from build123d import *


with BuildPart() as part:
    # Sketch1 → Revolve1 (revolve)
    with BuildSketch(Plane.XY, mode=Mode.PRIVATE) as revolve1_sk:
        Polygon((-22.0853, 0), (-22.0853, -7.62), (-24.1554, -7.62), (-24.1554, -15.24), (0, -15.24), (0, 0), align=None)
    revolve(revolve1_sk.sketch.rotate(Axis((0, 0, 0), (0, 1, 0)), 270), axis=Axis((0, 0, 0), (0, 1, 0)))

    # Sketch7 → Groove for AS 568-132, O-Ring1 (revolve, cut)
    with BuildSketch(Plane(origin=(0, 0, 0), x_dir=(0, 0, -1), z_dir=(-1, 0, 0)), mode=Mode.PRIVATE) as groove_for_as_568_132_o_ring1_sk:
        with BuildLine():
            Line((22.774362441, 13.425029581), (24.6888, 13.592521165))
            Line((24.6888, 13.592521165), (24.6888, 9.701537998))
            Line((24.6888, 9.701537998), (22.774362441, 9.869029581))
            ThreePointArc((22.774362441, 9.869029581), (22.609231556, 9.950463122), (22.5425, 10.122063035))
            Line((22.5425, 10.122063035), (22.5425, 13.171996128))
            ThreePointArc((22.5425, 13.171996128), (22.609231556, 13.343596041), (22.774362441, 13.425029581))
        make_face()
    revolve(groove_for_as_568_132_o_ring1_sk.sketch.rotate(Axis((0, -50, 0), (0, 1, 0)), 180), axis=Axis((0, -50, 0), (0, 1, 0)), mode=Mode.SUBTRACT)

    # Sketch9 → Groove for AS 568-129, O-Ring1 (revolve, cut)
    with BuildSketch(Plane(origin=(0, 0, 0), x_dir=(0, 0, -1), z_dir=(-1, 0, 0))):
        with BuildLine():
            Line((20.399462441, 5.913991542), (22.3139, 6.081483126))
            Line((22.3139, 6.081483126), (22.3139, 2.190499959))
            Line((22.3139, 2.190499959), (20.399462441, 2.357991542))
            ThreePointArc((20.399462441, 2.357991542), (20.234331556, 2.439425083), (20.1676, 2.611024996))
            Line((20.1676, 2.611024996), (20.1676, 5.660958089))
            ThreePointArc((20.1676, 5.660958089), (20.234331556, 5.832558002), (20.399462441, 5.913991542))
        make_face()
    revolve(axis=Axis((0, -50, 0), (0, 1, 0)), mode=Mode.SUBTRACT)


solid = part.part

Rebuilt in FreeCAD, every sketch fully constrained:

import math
import FreeCAD as App
import Part
import Sketcher

V = App.Vector
Q = App.Units.Quantity


def add_polygon(sketch, points):
    """Adds a closed chain of lines whose ends are joined by coincident constraints."""
    first, n = sketch.GeometryCount, len(points)
    for a, b in zip(points, points[1:] + points[:1]):
        sketch.addGeometry(Part.LineSegment(App.Vector(*a, 0), App.Vector(*b, 0)), False)
    for i in range(n):
        sketch.addConstraint(Sketcher.Constraint("Coincident", first + i, 2, first + (i + 1) % n, 1))

doc = App.newDocument("Part")
body = doc.addObject("PartDesign::Body", "Body")

sketch1 = body.newObject("Sketcher::SketchObject", "Sketch")
sketch1.AttachmentSupport = (doc.getObject("XY_Plane"), [""])
sketch1.MapMode = "FlatFace"
add_polygon(sketch1, [(-22.1, 0), (-22.1, -7.6), (-24.2, -7.6), (-24.2, -15.2), (0, -15.2), (0, 0)])
sketch1.addConstraint([
    Sketcher.Constraint("Vertical", 0),
    Sketcher.Constraint("Horizontal", 1),
    Sketcher.Constraint("Vertical", 2),
    Sketcher.Constraint("Horizontal", 3),
    Sketcher.Constraint("Vertical", 4),
    Sketcher.Constraint("Horizontal", 5),
    Sketcher.Constraint("Coincident", 4, 2, -1, 1),
    Sketcher.Constraint("Equal", 0, 2),
    Sketcher.Constraint("DistanceY", 0, 2, 0, 1, Q("0.3 in")),
    Sketcher.Constraint("DistanceX", 3, 1, 3, 2, Q("0.951 in")),
    Sketcher.Constraint("DistanceX", 1, 2, 1, 1, Q("0.0815 in")),
])
revolution = body.newObject("PartDesign::Revolution", "Revolution")
revolution.Profile = sketch1
revolution.ReferenceAxis = (sketch1, ["V_Axis"])
revolution.Angle = 360

sketch2 = body.newObject("Sketcher::SketchObject", "Sketch001")
sketch2.AttachmentSupport = (doc.getObject("YZ_Plane"), [""])
sketch2.MapMode = "FlatFace"
sketch2.addGeometry([
    Part.LineSegment(V(-13.59, -24.69, 0), V(-13.43, -22.77, 0)),
    Part.ArcOfCircle(Part.Circle(V(-13.17, -22.8, 0), V(0, 0, 1), 0.25), math.radians(90), math.radians(175)),
    Part.LineSegment(V(-13.17, -22.54, 0), V(-10.12, -22.54, 0)),
    Part.ArcOfCircle(Part.Circle(V(-10.12, -22.8, 0), V(0, 0, 1), 0.25), math.radians(5), math.radians(90)),
    Part.LineSegment(V(-9.87, -22.77, 0), V(-9.7, -24.69, 0)),
    Part.LineSegment(V(-9.7, -24.69, 0), V(-13.59, -24.69, 0)),
], False)
sketch2.addConstraint([
    Sketcher.Constraint("Tangent", 0, 2, 1, 2),
    Sketcher.Constraint("Tangent", 1, 1, 2, 1),
    Sketcher.Constraint("Tangent", 2, 2, 3, 2),
    Sketcher.Constraint("Tangent", 3, 1, 4, 1),
    Sketcher.Constraint("Coincident", 4, 2, 5, 1),
    Sketcher.Constraint("Coincident", 5, 2, 0, 1),
    Sketcher.Constraint("Horizontal", 2),
    Sketcher.Constraint("Horizontal", 5),
    Sketcher.Constraint("Equal", 1, 3),
    Sketcher.Constraint("Horizontal", 0, 2, 3, 1),
    Sketcher.Constraint("Radius", 1, Q("0.01 in")),
    Sketcher.Constraint("Angle", 0, Q("85 deg")),
    Sketcher.Constraint("DistanceX", 0, 2, 3, 1, Q("0.14 in")),
    Sketcher.Constraint("DistanceY", 4, 2, -1, 1, Q("0.972 in")),
    Sketcher.Constraint("DistanceY", 1, 3, -1, 1, Q("0.8975 in")),
    Sketcher.Constraint("DistanceX", 0, 2, -1, 1, Q("13.42503 mm")),
])
groove = body.newObject("PartDesign::Groove", "Groove")
groove.Profile = sketch2
groove.ReferenceAxis = (sketch2, ["H_Axis"])
groove.Angle = 360

sketch3 = body.newObject("Sketcher::SketchObject", "Sketch002")
sketch3.AttachmentSupport = (doc.getObject("YZ_Plane"), [""])
sketch3.MapMode = "FlatFace"
sketch3.addGeometry([
    Part.LineSegment(V(-6.08, -22.31, 0), V(-5.91, -20.4, 0)),
    Part.ArcOfCircle(Part.Circle(V(-5.66, -20.42, 0), V(0, 0, 1), 0.25), math.radians(90), math.radians(175)),
    Part.LineSegment(V(-5.66, -20.17, 0), V(-2.61, -20.17, 0)),
    Part.ArcOfCircle(Part.Circle(V(-2.61, -20.42, 0), V(0, 0, 1), 0.25), math.radians(5), math.radians(90)),
    Part.LineSegment(V(-2.36, -20.4, 0), V(-2.19, -22.31, 0)),
    Part.LineSegment(V(-2.19, -22.31, 0), V(-6.08, -22.31, 0)),
], False)
sketch3.addConstraint([
    Sketcher.Constraint("Tangent", 0, 2, 1, 2),
    Sketcher.Constraint("Tangent", 1, 1, 2, 1),
    Sketcher.Constraint("Tangent", 2, 2, 3, 2),
    Sketcher.Constraint("Tangent", 3, 1, 4, 1),
    Sketcher.Constraint("Coincident", 4, 2, 5, 1),
    Sketcher.Constraint("Coincident", 5, 2, 0, 1),
    Sketcher.Constraint("Horizontal", 2),
    Sketcher.Constraint("Horizontal", 5),
    Sketcher.Constraint("Equal", 1, 3),
    Sketcher.Constraint("Horizontal", 0, 2, 3, 1),
    Sketcher.Constraint("Radius", 1, Q("0.01 in")),
    Sketcher.Constraint("Angle", 0, Q("85 deg")),
    Sketcher.Constraint("DistanceX", 0, 2, 3, 1, Q("0.14 in")),
    Sketcher.Constraint("DistanceY", 1, 3, -1, 1, Q("0.804 in")),
    Sketcher.Constraint("DistanceY", 4, 2, -1, 1, Q("0.8785 in")),
    Sketcher.Constraint("DistanceX", 4, 2, -1, 1, Q("2.1905 mm")),
])
groove2 = body.newObject("PartDesign::Groove", "Groove001")
groove2.Profile = sketch3
groove2.ReferenceAxis = (sketch3, ["H_Axis"])
groove2.Angle = 360

doc.recompute()
